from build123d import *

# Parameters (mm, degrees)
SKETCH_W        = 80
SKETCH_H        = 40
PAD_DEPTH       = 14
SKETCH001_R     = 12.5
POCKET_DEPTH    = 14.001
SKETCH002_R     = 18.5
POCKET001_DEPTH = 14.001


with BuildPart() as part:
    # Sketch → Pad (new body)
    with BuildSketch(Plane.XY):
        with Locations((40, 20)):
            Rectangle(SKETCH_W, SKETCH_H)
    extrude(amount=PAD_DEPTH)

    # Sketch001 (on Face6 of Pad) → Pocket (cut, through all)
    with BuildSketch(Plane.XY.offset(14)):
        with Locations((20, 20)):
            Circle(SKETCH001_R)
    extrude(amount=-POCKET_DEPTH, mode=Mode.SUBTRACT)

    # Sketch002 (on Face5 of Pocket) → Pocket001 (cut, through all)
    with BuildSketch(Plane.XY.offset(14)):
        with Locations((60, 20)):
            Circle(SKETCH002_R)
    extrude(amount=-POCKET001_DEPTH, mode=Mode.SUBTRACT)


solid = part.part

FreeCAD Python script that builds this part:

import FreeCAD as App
import Part
import Sketcher
from FreeCAD import Vector
Q = App.Units.Quantity

doc = App.newDocument("Part")
body = doc.addObject("PartDesign::Body", "Body")

# Sketch on XY plane
sketch1 = doc.addObject("Sketcher::SketchObject", "Sketch")
body.addObject(sketch1)
sketch1.AttachmentSupport = (doc.XY_Plane, [""])
sketch1.MapMode = "FlatFace"
sketch1.addGeometry([
    Part.LineSegment(Vector(0, 40, 0), Vector(0, 0, 0)),
    Part.LineSegment(Vector(0, 0, 0), Vector(80, 0, 0)),
    Part.LineSegment(Vector(80, 0, 0), Vector(80, 40, 0)),
    Part.LineSegment(Vector(80, 40, 0), Vector(0, 40, 0)),
], False)
sketch1.addConstraint([
    Sketcher.Constraint("Coincident", 0, 2, 1, 1),
    Sketcher.Constraint("Coincident", 1, 2, 2, 1),
    Sketcher.Constraint("Coincident", 2, 2, 3, 1),
    Sketcher.Constraint("Coincident", 3, 2, 0, 1),
    Sketcher.Constraint("Vertical", 0),
    Sketcher.Constraint("Horizontal", 1),
    Sketcher.Constraint("Vertical", 2),
    Sketcher.Constraint("Horizontal", 3),
    Sketcher.Constraint("Coincident", 0, 2, -1, 1),
    Sketcher.Constraint("DistanceX", 1, 1, 1, 2, Q("80 mm")),
    Sketcher.Constraint("DistanceY", 0, 2, 0, 1, Q("40 mm")),
])
pad1 = doc.addObject("PartDesign::Pad", "Pad")
body.addObject(pad1)
pad1.Profile = sketch1
pad1.Length = 14

# Sketch on XY plane
sketch2 = doc.addObject("Sketcher::SketchObject", "Sketch001")
body.addObject(sketch2)
sketch2.AttachmentSupport = (doc.XY_Plane, [""])
sketch2.MapMode = "FlatFace"
sketch2.AttachmentOffset = App.Placement(Vector(0, 0, 14), App.Rotation())
sketch2.addGeometry(Part.Circle(Vector(20, 20, 0), Vector(0, 0, 1), 12), False)
sketch2.addConstraint([
    Sketcher.Constraint("Diameter", 0, Q("25 mm")),
    Sketcher.Constraint("DistanceX", -1, 1, 0, 3, Q("20 mm")),
    Sketcher.Constraint("DistanceY", -1, 1, 0, 3, Q("20 mm")),
])
pocket1 = doc.addObject("PartDesign::Pocket", "Pocket")
body.addObject(pocket1)
pocket1.Profile = sketch2
pocket1.Type = "ThroughAll"

# Sketch on XY plane
sketch3 = doc.addObject("Sketcher::SketchObject", "Sketch002")
body.addObject(sketch3)
sketch3.AttachmentSupport = (doc.XY_Plane, [""])
sketch3.MapMode = "FlatFace"
sketch3.AttachmentOffset = App.Placement(Vector(0, 0, 14), App.Rotation())
sketch3.addGeometry(Part.Circle(Vector(60, 20, 0), Vector(0, 0, 1), 18), False)
sketch3.addConstraint([
    Sketcher.Constraint("Diameter", 0, Q("37 mm")),
    Sketcher.Constraint("DistanceX", -1, 1, 0, 3, Q("60 mm")),
    Sketcher.Constraint("DistanceY", -1, 1, 0, 3, Q("20 mm")),
])
pocket2 = doc.addObject("PartDesign::Pocket", "Pocket001")
body.addObject(pocket2)
pocket2.Profile = sketch3
pocket2.Type = "ThroughAll"

doc.recompute()
